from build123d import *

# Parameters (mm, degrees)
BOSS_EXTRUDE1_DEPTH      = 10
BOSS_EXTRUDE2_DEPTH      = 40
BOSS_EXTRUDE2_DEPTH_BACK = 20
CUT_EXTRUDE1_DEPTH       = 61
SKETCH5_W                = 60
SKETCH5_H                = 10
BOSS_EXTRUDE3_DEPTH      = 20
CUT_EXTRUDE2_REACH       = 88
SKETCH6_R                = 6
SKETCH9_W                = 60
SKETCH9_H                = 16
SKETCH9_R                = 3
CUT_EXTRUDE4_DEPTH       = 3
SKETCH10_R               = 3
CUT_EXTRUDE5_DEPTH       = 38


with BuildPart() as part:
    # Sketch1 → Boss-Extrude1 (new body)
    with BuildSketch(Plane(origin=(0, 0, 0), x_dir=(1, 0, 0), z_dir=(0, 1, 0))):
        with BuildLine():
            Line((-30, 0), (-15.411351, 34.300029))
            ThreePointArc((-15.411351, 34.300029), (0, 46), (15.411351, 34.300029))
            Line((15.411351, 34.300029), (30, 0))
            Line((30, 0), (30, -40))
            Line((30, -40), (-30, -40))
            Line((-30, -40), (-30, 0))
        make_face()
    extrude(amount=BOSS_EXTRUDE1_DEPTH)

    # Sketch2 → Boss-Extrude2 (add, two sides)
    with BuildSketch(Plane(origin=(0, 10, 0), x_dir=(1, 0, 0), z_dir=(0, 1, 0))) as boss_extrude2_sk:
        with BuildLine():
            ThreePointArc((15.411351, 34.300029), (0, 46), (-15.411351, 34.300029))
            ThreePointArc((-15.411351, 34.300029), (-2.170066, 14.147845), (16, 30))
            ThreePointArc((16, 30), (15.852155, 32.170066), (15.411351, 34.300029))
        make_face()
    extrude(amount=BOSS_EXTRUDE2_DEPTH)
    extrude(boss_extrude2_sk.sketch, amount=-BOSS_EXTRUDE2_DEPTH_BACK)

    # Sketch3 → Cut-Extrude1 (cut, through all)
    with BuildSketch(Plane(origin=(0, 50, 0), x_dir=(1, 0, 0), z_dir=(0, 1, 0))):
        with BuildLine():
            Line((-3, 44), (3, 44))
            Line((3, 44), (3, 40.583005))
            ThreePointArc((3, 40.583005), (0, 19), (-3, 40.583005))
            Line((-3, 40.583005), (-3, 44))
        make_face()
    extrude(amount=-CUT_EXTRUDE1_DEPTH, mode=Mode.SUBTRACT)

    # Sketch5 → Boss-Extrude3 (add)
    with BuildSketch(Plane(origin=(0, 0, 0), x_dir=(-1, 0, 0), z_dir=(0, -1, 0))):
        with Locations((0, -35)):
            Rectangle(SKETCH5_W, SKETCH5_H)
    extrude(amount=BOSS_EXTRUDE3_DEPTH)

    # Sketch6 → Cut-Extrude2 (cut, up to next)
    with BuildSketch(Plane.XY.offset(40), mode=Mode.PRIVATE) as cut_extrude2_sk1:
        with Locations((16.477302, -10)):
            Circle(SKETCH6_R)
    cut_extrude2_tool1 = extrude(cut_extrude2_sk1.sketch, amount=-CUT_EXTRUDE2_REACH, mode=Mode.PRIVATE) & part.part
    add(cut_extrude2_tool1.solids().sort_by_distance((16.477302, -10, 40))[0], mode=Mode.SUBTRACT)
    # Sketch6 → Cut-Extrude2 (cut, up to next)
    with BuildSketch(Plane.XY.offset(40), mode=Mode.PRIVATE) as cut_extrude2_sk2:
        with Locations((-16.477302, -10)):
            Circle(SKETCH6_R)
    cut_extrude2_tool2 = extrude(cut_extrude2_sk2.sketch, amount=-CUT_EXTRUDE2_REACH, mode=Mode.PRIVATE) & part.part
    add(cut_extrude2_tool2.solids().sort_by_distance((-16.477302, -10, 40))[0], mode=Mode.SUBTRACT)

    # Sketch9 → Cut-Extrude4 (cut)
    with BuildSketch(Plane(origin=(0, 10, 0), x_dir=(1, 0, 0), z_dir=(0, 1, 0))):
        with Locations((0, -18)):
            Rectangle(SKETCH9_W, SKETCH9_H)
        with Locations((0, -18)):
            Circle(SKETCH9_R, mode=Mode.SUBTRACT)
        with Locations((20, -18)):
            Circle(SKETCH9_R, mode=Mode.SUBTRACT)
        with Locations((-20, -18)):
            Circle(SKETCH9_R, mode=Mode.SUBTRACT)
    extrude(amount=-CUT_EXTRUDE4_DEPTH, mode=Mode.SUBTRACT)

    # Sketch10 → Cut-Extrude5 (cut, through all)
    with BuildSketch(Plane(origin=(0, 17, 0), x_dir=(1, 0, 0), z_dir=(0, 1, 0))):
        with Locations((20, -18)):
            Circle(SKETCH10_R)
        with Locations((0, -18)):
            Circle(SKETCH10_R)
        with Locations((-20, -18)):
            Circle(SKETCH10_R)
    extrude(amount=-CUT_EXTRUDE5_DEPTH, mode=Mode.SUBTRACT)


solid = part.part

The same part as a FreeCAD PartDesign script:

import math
import FreeCAD as App
import Part
import Sketcher

V = App.Vector
Q = App.Units.Quantity


def add_polygon(sketch, points):
    """Adds a closed chain of lines whose ends are joined by coincident constraints."""
    first, n = sketch.GeometryCount, len(points)
    for a, b in zip(points, points[1:] + points[:1]):
        sketch.addGeometry(Part.LineSegment(App.Vector(*a, 0), App.Vector(*b, 0)), False)
    for i in range(n):
        sketch.addConstraint(Sketcher.Constraint("Coincident", first + i, 2, first + (i + 1) % n, 1))

doc = App.newDocument("Part")
body = doc.addObject("PartDesign::Body", "Body")

# Sketch on XZ plane
sketch1 = body.newObject("Sketcher::SketchObject", "Sketch")
sketch1.AttachmentSupport = (doc.getObject("XZ_Plane"), [""])
sketch1.MapMode = "FlatFace"
sketch1.addGeometry(Part.LineSegment(V(-15, -34, 0), V(-30, 0, 0)), False)
sketch1.addGeometry(Part.LineSegment(V(-30, 0, 0), V(-30, 40, 0)), False)
sketch1.addGeometry(Part.LineSegment(V(-30, 40, 0), V(30, 40, 0)), False)
sketch1.addGeometry(Part.LineSegment(V(30, 40, 0), V(30, 0, 0)), False)
sketch1.addGeometry(Part.LineSegment(V(30, 0, 0), V(15, -34, 0)), False)
sketch1.addGeometry(Part.ArcOfCircle(Part.Circle(V(0, -30, 0), V(0, 0, 1), 16), math.radians(-164), math.radians(-16)), False)
sketch1.addConstraint(Sketcher.Constraint("Coincident", 0, 2, 1, 1))
sketch1.addConstraint(Sketcher.Constraint("Coincident", 1, 2, 2, 1))
sketch1.addConstraint(Sketcher.Constraint("Coincident", 2, 2, 3, 1))
sketch1.addConstraint(Sketcher.Constraint("Coincident", 3, 2, 4, 1))
sketch1.addConstraint(Sketcher.Constraint("Coincident", 4, 2, 5, 2))
sketch1.addConstraint(Sketcher.Constraint("Coincident", 5, 1, 0, 1))
sketch1.addConstraint(Sketcher.Constraint("Vertical", 1))
sketch1.addConstraint(Sketcher.Constraint("Horizontal", 2))
sketch1.addConstraint(Sketcher.Constraint("Vertical", 3))
sketch1.addConstraint(Sketcher.Constraint("Symmetric", 0, 2, 3, 2, -1, 1))
sketch1.addConstraint(Sketcher.Constraint("Symmetric", 4, 2, 5, 1, -2))
sketch1.addConstraint(Sketcher.Constraint("PointOnObject", 0, 2, -1))
sketch1.addConstraint(Sketcher.Constraint("Radius", 5, Q("16 mm")))
sketch1.addConstraint(Sketcher.Constraint("DistanceX", 2, 1, 2, 2, Q("60 mm")))
sketch1.addConstraint(Sketcher.Constraint("DistanceY", 1, 1, 1, 2, Q("40 mm")))
sketch1.addConstraint(Sketcher.Constraint("DistanceY", 5, 3, -1, 1, Q("30 mm")))
sketch1.addConstraint(Sketcher.Constraint("DistanceX", -1, 1, 4, 2, Q("15.411351 mm")))
pad1 = body.newObject("PartDesign::Pad", "Pad")
pad1.Profile = sketch1
pad1.Length = 10
pad1.Reversed = True

# Sketch on XZ plane
sketch2 = body.newObject("Sketcher::SketchObject", "Sketch001")
sketch2.AttachmentSupport = (doc.getObject("XZ_Plane"), [""])
sketch2.MapMode = "FlatFace"
sketch2.AttachmentOffset = App.Placement(V(0, 0, -10), App.Rotation())
sketch2.addGeometry(Part.ArcOfCircle(Part.Circle(V(0, -30, 0), V(0, 0, 1), 16), math.radians(-164.409995), math.radians(-15.590005)), False)
sketch2.addGeometry(Part.ArcOfCircle(Part.Circle(V(0, -30, 0), V(0, 0, 1), 16), math.radians(-0.000001), math.radians(195.590007)), False)
sketch2.addGeometry(Part.ArcOfCircle(Part.Circle(V(0.000034, -30.000003, 0), V(0, 0, 1), 15.999966), math.radians(-15.590027), math.radians(0.000012)), False)
sketch2.addConstraint(Sketcher.Constraint("Coincident", 0, 1, 1, 2))
sketch2.addConstraint(Sketcher.Constraint("Coincident", 1, 1, 2, 2))
sketch2.addConstraint(Sketcher.Constraint("Coincident", 2, 1, 0, 2))
sketch2.addConstraint(Sketcher.Constraint("Coincident", 1, 3, 0, 3))
sketch2.addConstraint(Sketcher.Constraint("PointOnObject", 0, 3, -2))
sketch2.addConstraint(Sketcher.Constraint("Radius", 0, Q("16 mm")))
sketch2.addConstraint(Sketcher.Constraint("DistanceY", 0, 3, -1, 1, Q("30 mm")))
sketch2.addConstraint(Sketcher.Constraint("DistanceY", 1, 1, -1, 1, Q("30 mm")))
sketch2.addConstraint(Sketcher.Constraint("Radius", 2, Q("15.999966 mm")))
sketch2.addConstraint(Sketcher.Constraint("DistanceX", 0, 1, -1, 1, Q("15.411351 mm")))
sketch2.addConstraint(Sketcher.Constraint("DistanceX", -1, 1, 2, 1, Q("15.411351 mm")))
pad2 = body.newObject("PartDesign::Pad", "Pad001")
pad2.Profile = sketch2
pad2.Type = "TwoLengths"
pad2.Length = 40
pad2.Length2 = 20
pad2.Reversed = True

# Sketch on XZ plane
sketch3 = body.newObject("Sketcher::SketchObject", "Sketch002")
sketch3.AttachmentSupport = (doc.getObject("XZ_Plane"), [""])
sketch3.MapMode = "FlatFace"
sketch3.AttachmentOffset = App.Placement(V(0, 0, -50), App.Rotation())
sketch3.addGeometry(Part.LineSegment(V(3, -44, 0), V(-3, -44, 0)), False)
sketch3.addGeometry(Part.LineSegment(V(-3, -44, 0), V(-3, -40.6, 0)), False)
sketch3.addGeometry(Part.ArcOfCircle(Part.Circle(V(0, -30, 0), V(0, 0, 1), 11), math.radians(-74), math.radians(254)), False)
sketch3.addGeometry(Part.LineSegment(V(3, -40.6, 0), V(3, -44, 0)), False)
sketch3.addConstraint(Sketcher.Constraint("Coincident", 0, 2, 1, 1))
sketch3.addConstraint(Sketcher.Constraint("Coincident", 1, 2, 2, 2))
sketch3.addConstraint(Sketcher.Constraint("Coincident", 2, 1, 3, 1))
sketch3.addConstraint(Sketcher.Constraint("Coincident", 3, 2, 0, 1))
sketch3.addConstraint(Sketcher.Constraint("Horizontal", 0))
sketch3.addConstraint(Sketcher.Constraint("Vertical", 1))
sketch3.addConstraint(Sketcher.Constraint("Vertical", 3))
sketch3.addConstraint(Sketcher.Constraint("Symmetric", 1, 2, 2, 1, -2))
sketch3.addConstraint(Sketcher.Constraint("Radius", 2, Q("11 mm")))
sketch3.addConstraint(Sketcher.Constraint("DistanceX", 0, 2, 0, 1, Q("6 mm")))
sketch3.addConstraint(Sketcher.Constraint("DistanceY", 2, 3, -1, 1, Q("30 mm")))
sketch3.addConstraint(Sketcher.Constraint("DistanceY", 0, 2, -1, 1, Q("44 mm")))
pocket1 = body.newObject("PartDesign::Pocket", "Pocket")
pocket1.Profile = sketch3
pocket1.Type = "ThroughAll"
pocket1.Reversed = True

# Sketch on XZ plane
sketch4 = body.newObject("Sketcher::SketchObject", "Sketch003")
sketch4.AttachmentSupport = (doc.getObject("XZ_Plane"), [""])
sketch4.MapMode = "FlatFace"
add_polygon(sketch4, [(30, 30), (30, 40), (-30, 40), (-30, 30)])  # lines 0-3
sketch4.addConstraint(Sketcher.Constraint("Vertical", 0))
sketch4.addConstraint(Sketcher.Constraint("Horizontal", 1))
sketch4.addConstraint(Sketcher.Constraint("Vertical", 2))
sketch4.addConstraint(Sketcher.Constraint("Horizontal", 3))
sketch4.addConstraint(Sketcher.Constraint("DistanceX", 1, 2, 1, 1, Q("60 mm")))
sketch4.addConstraint(Sketcher.Constraint("DistanceY", 0, 1, 0, 2, Q("10 mm")))
sketch4.addConstraint(Sketcher.Constraint("DistanceX", -1, 1, 0, 2, Q("30 mm")))
sketch4.addConstraint(Sketcher.Constraint("DistanceY", -1, 1, 0, 2, Q("40 mm")))
pad3 = body.newObject("PartDesign::Pad", "Pad002")
pad3.Profile = sketch4
pad3.Length = 20

# Sketch on XY plane
sketch5 = body.newObject("Sketcher::SketchObject", "Sketch004")
sketch5.AttachmentSupport = (doc.getObject("XY_Plane"), [""])
sketch5.MapMode = "FlatFace"
sketch5.AttachmentOffset = App.Placement(V(0, 0, 40), App.Rotation())
sketch5.addGeometry(Part.Circle(V(16, -10, 0), V(0, 0, 1), 6), False)
sketch5.addConstraint(Sketcher.Constraint("Diameter", 0, Q("12 mm")))
sketch5.addConstraint(Sketcher.Constraint("DistanceY", 0, 3, -1, 1, Q("10 mm")))
sketch5.addConstraint(Sketcher.Constraint("DistanceX", -1, 1, 0, 3, Q("16.477302 mm")))
pocket2 = body.newObject("PartDesign::Pocket", "Pocket001")
pocket2.Profile = sketch5
pocket2.Type = "UpToFirst"

# Sketch on XY plane
sketch6 = body.newObject("Sketcher::SketchObject", "Sketch005")
sketch6.AttachmentSupport = (doc.getObject("XY_Plane"), [""])
sketch6.MapMode = "FlatFace"
sketch6.AttachmentOffset = App.Placement(V(0, 0, 40), App.Rotation())
sketch6.addGeometry(Part.Circle(V(-16, -10, 0), V(0, 0, 1), 6), False)
sketch6.addConstraint(Sketcher.Constraint("Diameter", 0, Q("12 mm")))
sketch6.addConstraint(Sketcher.Constraint("DistanceY", 0, 3, -1, 1, Q("10 mm")))
sketch6.addConstraint(Sketcher.Constraint("DistanceX", 0, 3, -1, 1, Q("16.477302 mm")))
pocket3 = body.newObject("PartDesign::Pocket", "Pocket002")
pocket3.Profile = sketch6
pocket3.Type = "UpToFirst"

# Sketch on XZ plane
sketch7 = body.newObject("Sketcher::SketchObject", "Sketch006")
sketch7.AttachmentSupport = (doc.getObject("XZ_Plane"), [""])
sketch7.MapMode = "FlatFace"
sketch7.AttachmentOffset = App.Placement(V(0, 0, -10), App.Rotation())
add_polygon(sketch7, [(-30, 10), (-30, 26), (30, 26), (30, 10)])  # lines 0-3
sketch7.addGeometry(Part.Circle(V(-20, 18, 0), V(0, 0, 1), 3), False)  # 4
sketch7.addGeometry(Part.Circle(V(0, 18, 0), V(0, 0, 1), 3), False)  # 5
sketch7.addGeometry(Part.Circle(V(20, 18, 0), V(0, 0, 1), 3), False)  # 6
sketch7.addConstraint(Sketcher.Constraint("Vertical", 0))
sketch7.addConstraint(Sketcher.Constraint("Horizontal", 1))
sketch7.addConstraint(Sketcher.Constraint("Vertical", 2))
sketch7.addConstraint(Sketcher.Constraint("Horizontal", 3))
sketch7.addConstraint(Sketcher.Constraint("Equal", 4, 5))
sketch7.addConstraint(Sketcher.Constraint("Equal", 5, 6))
sketch7.addConstraint(Sketcher.Constraint("Symmetric", 4, 3, 6, 3, -2))
sketch7.addConstraint(Sketcher.Constraint("PointOnObject", 5, 3, -2))
sketch7.addConstraint(Sketcher.Constraint("Horizontal", 4, 3, 5, 3))
sketch7.addConstraint(Sketcher.Constraint("Diameter", 4, Q("6 mm")))
sketch7.addConstraint(Sketcher.Constraint("DistanceX", 1, 1, 1, 2, Q("60 mm")))
sketch7.addConstraint(Sketcher.Constraint("DistanceY", 0, 1, 0, 2, Q("16 mm")))
sketch7.addConstraint(Sketcher.Constraint("DistanceX", 4, 3, -1, 1, Q("20 mm")))
sketch7.addConstraint(Sketcher.Constraint("DistanceY", -1, 1, 4, 3, Q("18 mm")))
sketch7.addConstraint(Sketcher.Constraint("DistanceX", 0, 2, -1, 1, Q("30 mm")))
sketch7.addConstraint(Sketcher.Constraint("DistanceY", -1, 1, 0, 2, Q("26 mm")))
pocket4 = body.newObject("PartDesign::Pocket", "Pocket003")
pocket4.Profile = sketch7
pocket4.Length = 3
pocket4.Reversed = True

# Sketch on XZ plane
sketch8 = body.newObject("Sketcher::SketchObject", "Sketch007")
sketch8.AttachmentSupport = (doc.getObject("XZ_Plane"), [""])
sketch8.MapMode = "FlatFace"
sketch8.AttachmentOffset = App.Placement(V(0, 0, -17), App.Rotation())
sketch8.addGeometry(Part.Circle(V(20, 18, 0), V(0, 0, 1), 3), False)
sketch8.addGeometry(Part.Circle(V(0, 18, 0), V(0, 0, 1), 3), False)
sketch8.addGeometry(Part.Circle(V(-20, 18, 0), V(0, 0, 1), 3), False)
sketch8.addConstraint(Sketcher.Constraint("Equal", 0, 1))
sketch8.addConstraint(Sketcher.Constraint("Equal", 1, 2))
sketch8.addConstraint(Sketcher.Constraint("Symmetric", 0, 3, 2, 3, -2))
sketch8.addConstraint(Sketcher.Constraint("PointOnObject", 1, 3, -2))
sketch8.addConstraint(Sketcher.Constraint("Horizontal", 0, 3, 1, 3))
sketch8.addConstraint(Sketcher.Constraint("Diameter", 0, Q("6 mm")))
sketch8.addConstraint(Sketcher.Constraint("DistanceX", -1, 1, 0, 3, Q("20 mm")))
sketch8.addConstraint(Sketcher.Constraint("DistanceY", -1, 1, 0, 3, Q("18 mm")))
pocket5 = body.newObject("PartDesign::Pocket", "Pocket004")
pocket5.Profile = sketch8
pocket5.Type = "ThroughAll"
pocket5.Reversed = True

doc.recompute()
